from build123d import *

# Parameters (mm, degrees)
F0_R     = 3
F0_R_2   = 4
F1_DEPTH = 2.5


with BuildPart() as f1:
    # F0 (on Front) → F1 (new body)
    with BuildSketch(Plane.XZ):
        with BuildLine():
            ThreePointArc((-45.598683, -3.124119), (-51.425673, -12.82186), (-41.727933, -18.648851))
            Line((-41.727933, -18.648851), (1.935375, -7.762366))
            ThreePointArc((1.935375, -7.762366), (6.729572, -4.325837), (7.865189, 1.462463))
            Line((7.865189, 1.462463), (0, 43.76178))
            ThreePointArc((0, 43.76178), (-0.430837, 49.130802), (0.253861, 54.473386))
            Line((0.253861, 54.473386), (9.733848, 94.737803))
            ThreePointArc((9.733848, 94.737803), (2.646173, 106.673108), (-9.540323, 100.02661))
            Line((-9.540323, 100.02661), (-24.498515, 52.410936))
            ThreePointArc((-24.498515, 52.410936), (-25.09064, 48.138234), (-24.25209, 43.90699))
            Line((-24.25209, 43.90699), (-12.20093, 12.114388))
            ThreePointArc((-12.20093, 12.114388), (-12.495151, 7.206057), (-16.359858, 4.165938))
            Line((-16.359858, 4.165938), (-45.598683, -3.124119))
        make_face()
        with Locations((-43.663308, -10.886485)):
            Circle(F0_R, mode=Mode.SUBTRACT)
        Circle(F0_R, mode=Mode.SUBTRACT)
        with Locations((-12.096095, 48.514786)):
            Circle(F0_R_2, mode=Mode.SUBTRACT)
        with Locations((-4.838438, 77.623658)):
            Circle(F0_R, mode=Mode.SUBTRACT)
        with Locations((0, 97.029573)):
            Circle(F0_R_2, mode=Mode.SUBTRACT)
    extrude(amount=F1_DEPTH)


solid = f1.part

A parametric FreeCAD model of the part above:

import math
import FreeCAD as App
import Part
import Sketcher

V = App.Vector

doc = App.newDocument("Part")
body = doc.addObject("PartDesign::Body", "Body")

sketch1 = body.newObject("Sketcher::SketchObject", "Sketch")
sketch1.AttachmentSupport = (doc.getObject("XZ_Plane"), [""])
sketch1.MapMode = "FlatFace"
sketch1.addGeometry(Part.ArcOfCircle(Part.Circle(V(-43.663307, -10.886485, 0), V(0, 0, 1), 8), math.radians(104.000005), math.radians(283.999992)), False)
sketch1.addGeometry(Part.LineSegment(V(-41.727933, -18.648851, 0), V(1.935375, -7.762366, 0)), False)
sketch1.addGeometry(Part.ArcOfCircle(Part.Circle(V(0.000001, -0.000001, 0), V(0, 0, 1), 7.999999), math.radians(-76.000007), math.radians(10.533362)), False)
sketch1.addGeometry(Part.LineSegment(V(7.865189, 1.462463, 0), V(0, 43.76178, 0)), False)
sketch1.addGeometry(Part.ArcOfCircle(Part.Circle(V(25.56183, 48.514786, 0), V(0, 0, 1), 25.999966), math.radians(166.751363), math.radians(190.533369)), False)
sketch1.addGeometry(Part.LineSegment(V(0.253861, 54.473386, 0), V(9.733848, 94.737803, 0)), False)
sketch1.addGeometry(Part.ArcOfCircle(Part.Circle(V(0, 97.029573, 0), V(0, 0, 1), 10), math.radians(-13.248622), math.radians(162.560192)), False)
sketch1.addGeometry(Part.LineSegment(V(-9.540323, 100.02661, 0), V(-24.498515, 52.410936, 0)), False)
sketch1.addGeometry(Part.ArcOfCircle(Part.Circle(V(-12.096087, 48.514787, 0), V(0, 0, 1), 13.000008), math.radians(162.560198), math.radians(200.759476)), False)
sketch1.addGeometry(Part.LineSegment(V(-24.25209, 43.90699, 0), V(-12.20093, 12.114388, 0)), False)
sketch1.addGeometry(Part.ArcOfCircle(Part.Circle(V(-17.81139, 9.987713, 0), V(0, 0, 1), 6.000001), math.radians(-75.999993), math.radians(20.75948)), False)
sketch1.addGeometry(Part.LineSegment(V(-16.359858, 4.165938, 0), V(-45.598683, -3.124119, 0)), False)
sketch1.addGeometry(Part.Circle(V(-43.663308, -10.886485, 0), V(0, 0, 1), 3), False)
sketch1.addGeometry(Part.Circle(V(0, 0, 0), V(0, 0, 1), 3), False)
sketch1.addGeometry(Part.Circle(V(-12.096095, 48.514786, 0), V(0, 0, 1), 4), False)
sketch1.addGeometry(Part.Circle(V(-4.838438, 77.623658, 0), V(0, 0, 1), 3), False)
sketch1.addGeometry(Part.Circle(V(0, 97.029573, 0), V(0, 0, 1), 4), False)
sketch1.addConstraint(Sketcher.Constraint("Coincident", 0, 2, 1, 1))
sketch1.addConstraint(Sketcher.Constraint("Coincident", 1, 2, 2, 1))
sketch1.addConstraint(Sketcher.Constraint("Coincident", 2, 2, 3, 1))
sketch1.addConstraint(Sketcher.Constraint("Coincident", 3, 2, 4, 2))
sketch1.addConstraint(Sketcher.Constraint("Coincident", 4, 1, 5, 1))
sketch1.addConstraint(Sketcher.Constraint("Coincident", 5, 2, 6, 1))
sketch1.addConstraint(Sketcher.Constraint("Coincident", 6, 2, 7, 1))
sketch1.addConstraint(Sketcher.Constraint("Coincident", 7, 2, 8, 1))
sketch1.addConstraint(Sketcher.Constraint("Coincident", 8, 2, 9, 1))
sketch1.addConstraint(Sketcher.Constraint("Coincident", 9, 2, 10, 2))
sketch1.addConstraint(Sketcher.Constraint("Coincident", 10, 1, 11, 1))
sketch1.addConstraint(Sketcher.Constraint("Coincident", 11, 2, 0, 1))
sketch1.addConstraint(Sketcher.Constraint("Coincident", 2, 3, -1, 1))
sketch1.addConstraint(Sketcher.Constraint("Coincident", 13, 3, -1, 1))
sketch1.addConstraint(Sketcher.Constraint("Coincident", 12, 3, 0, 3))
sketch1.addConstraint(Sketcher.Constraint("Coincident", 14, 3, 8, 3))
sketch1.addConstraint(Sketcher.Constraint("Coincident", 16, 3, 6, 3))
sketch1.addConstraint(Sketcher.Constraint("PointOnObject", 6, 3, -2))
sketch1.addConstraint(Sketcher.Constraint("PointOnObject", 3, 2, -2))
sketch1.addConstraint(Sketcher.Constraint("Diameter", 12, 6.0))
sketch1.addConstraint(Sketcher.Constraint("Diameter", 13, 6.0))
sketch1.addConstraint(Sketcher.Constraint("Diameter", 14, 8.0))
sketch1.addConstraint(Sketcher.Constraint("Diameter", 15, 6.0))
sketch1.addConstraint(Sketcher.Constraint("Diameter", 16, 8.0))
sketch1.addConstraint(Sketcher.Constraint("Radius", 0, 8.0))
sketch1.addConstraint(Sketcher.Constraint("Radius", 2, 7.999999))
sketch1.addConstraint(Sketcher.Constraint("Radius", 6, 10.0))
sketch1.addConstraint(Sketcher.Constraint("Radius", 10, 6.000001))
sketch1.addConstraint(Sketcher.Constraint("Distance", 1, 45.0))
sketch1.addConstraint(Sketcher.Constraint("Distance", 9, 34.0))
sketch1.addConstraint(Sketcher.Constraint("Radius", 4, 25.999966))
sketch1.addConstraint(Sketcher.Constraint("Radius", 8, 13.000008))
sketch1.addConstraint(Sketcher.Constraint("DistanceY", 12, 3, 10, 3, 20.874198))
sketch1.addConstraint(Sketcher.Constraint("DistanceY", 8, 3, 4, 1, 5.958599))
sketch1.addConstraint(Sketcher.Constraint("DistanceX", 15, 3, 4, 1, 5.092299))
sketch1.addConstraint(Sketcher.Constraint("DistanceY", 4, 3, 4, 1, 5.9586))
sketch1.addConstraint(Sketcher.Constraint("Distance", 7, 49.909918))
sketch1.addConstraint(Sketcher.Constraint("Distance", 11, 30.133931))
sketch1.addConstraint(Sketcher.Constraint("DistanceX", -1, 1, 4, 3, 25.56183))
sketch1.addConstraint(Sketcher.Constraint("DistanceX", 10, 3, -1, 1, 17.81139))
sketch1.addConstraint(Sketcher.Constraint("DistanceY", -1, 1, 15, 3, 77.623658))
sketch1.addConstraint(Sketcher.Constraint("DistanceY", 0, 2, -1, 1, 18.648851))
sketch1.addConstraint(Sketcher.Constraint("DistanceX", -1, 1, 2, 2, 7.865189))
sketch1.addConstraint(Sketcher.Constraint("DistanceY", -1, 1, 3, 2, 43.76178))
sketch1.addConstraint(Sketcher.Constraint("DistanceY", -1, 1, 6, 2, 100.02661))
sketch1.addConstraint(Sketcher.Constraint("DistanceX", 8, 2, -1, 1, 24.25209))
sketch1.addConstraint(Sketcher.Constraint("DistanceY", -1, 1, 8, 2, 43.90699))
sketch1.addConstraint(Sketcher.Constraint("DistanceX", 9, 2, -1, 1, 12.20093))
sketch1.addConstraint(Sketcher.Constraint("DistanceX", 10, 1, -1, 1, 16.359858))
sketch1.addConstraint(Sketcher.Constraint("DistanceY", 11, 2, -1, 1, 3.124119))
sketch1.addConstraint(Sketcher.Constraint("DistanceY", 10, 3, 6, 3, 87.04186))
sketch1.addConstraint(Sketcher.Constraint("DistanceY", 5, 2, 6, 3, 2.29177))
pad1 = body.newObject("PartDesign::Pad", "Pad")
pad1.Profile = sketch1
pad1.Length = 2.5

doc.recompute()
